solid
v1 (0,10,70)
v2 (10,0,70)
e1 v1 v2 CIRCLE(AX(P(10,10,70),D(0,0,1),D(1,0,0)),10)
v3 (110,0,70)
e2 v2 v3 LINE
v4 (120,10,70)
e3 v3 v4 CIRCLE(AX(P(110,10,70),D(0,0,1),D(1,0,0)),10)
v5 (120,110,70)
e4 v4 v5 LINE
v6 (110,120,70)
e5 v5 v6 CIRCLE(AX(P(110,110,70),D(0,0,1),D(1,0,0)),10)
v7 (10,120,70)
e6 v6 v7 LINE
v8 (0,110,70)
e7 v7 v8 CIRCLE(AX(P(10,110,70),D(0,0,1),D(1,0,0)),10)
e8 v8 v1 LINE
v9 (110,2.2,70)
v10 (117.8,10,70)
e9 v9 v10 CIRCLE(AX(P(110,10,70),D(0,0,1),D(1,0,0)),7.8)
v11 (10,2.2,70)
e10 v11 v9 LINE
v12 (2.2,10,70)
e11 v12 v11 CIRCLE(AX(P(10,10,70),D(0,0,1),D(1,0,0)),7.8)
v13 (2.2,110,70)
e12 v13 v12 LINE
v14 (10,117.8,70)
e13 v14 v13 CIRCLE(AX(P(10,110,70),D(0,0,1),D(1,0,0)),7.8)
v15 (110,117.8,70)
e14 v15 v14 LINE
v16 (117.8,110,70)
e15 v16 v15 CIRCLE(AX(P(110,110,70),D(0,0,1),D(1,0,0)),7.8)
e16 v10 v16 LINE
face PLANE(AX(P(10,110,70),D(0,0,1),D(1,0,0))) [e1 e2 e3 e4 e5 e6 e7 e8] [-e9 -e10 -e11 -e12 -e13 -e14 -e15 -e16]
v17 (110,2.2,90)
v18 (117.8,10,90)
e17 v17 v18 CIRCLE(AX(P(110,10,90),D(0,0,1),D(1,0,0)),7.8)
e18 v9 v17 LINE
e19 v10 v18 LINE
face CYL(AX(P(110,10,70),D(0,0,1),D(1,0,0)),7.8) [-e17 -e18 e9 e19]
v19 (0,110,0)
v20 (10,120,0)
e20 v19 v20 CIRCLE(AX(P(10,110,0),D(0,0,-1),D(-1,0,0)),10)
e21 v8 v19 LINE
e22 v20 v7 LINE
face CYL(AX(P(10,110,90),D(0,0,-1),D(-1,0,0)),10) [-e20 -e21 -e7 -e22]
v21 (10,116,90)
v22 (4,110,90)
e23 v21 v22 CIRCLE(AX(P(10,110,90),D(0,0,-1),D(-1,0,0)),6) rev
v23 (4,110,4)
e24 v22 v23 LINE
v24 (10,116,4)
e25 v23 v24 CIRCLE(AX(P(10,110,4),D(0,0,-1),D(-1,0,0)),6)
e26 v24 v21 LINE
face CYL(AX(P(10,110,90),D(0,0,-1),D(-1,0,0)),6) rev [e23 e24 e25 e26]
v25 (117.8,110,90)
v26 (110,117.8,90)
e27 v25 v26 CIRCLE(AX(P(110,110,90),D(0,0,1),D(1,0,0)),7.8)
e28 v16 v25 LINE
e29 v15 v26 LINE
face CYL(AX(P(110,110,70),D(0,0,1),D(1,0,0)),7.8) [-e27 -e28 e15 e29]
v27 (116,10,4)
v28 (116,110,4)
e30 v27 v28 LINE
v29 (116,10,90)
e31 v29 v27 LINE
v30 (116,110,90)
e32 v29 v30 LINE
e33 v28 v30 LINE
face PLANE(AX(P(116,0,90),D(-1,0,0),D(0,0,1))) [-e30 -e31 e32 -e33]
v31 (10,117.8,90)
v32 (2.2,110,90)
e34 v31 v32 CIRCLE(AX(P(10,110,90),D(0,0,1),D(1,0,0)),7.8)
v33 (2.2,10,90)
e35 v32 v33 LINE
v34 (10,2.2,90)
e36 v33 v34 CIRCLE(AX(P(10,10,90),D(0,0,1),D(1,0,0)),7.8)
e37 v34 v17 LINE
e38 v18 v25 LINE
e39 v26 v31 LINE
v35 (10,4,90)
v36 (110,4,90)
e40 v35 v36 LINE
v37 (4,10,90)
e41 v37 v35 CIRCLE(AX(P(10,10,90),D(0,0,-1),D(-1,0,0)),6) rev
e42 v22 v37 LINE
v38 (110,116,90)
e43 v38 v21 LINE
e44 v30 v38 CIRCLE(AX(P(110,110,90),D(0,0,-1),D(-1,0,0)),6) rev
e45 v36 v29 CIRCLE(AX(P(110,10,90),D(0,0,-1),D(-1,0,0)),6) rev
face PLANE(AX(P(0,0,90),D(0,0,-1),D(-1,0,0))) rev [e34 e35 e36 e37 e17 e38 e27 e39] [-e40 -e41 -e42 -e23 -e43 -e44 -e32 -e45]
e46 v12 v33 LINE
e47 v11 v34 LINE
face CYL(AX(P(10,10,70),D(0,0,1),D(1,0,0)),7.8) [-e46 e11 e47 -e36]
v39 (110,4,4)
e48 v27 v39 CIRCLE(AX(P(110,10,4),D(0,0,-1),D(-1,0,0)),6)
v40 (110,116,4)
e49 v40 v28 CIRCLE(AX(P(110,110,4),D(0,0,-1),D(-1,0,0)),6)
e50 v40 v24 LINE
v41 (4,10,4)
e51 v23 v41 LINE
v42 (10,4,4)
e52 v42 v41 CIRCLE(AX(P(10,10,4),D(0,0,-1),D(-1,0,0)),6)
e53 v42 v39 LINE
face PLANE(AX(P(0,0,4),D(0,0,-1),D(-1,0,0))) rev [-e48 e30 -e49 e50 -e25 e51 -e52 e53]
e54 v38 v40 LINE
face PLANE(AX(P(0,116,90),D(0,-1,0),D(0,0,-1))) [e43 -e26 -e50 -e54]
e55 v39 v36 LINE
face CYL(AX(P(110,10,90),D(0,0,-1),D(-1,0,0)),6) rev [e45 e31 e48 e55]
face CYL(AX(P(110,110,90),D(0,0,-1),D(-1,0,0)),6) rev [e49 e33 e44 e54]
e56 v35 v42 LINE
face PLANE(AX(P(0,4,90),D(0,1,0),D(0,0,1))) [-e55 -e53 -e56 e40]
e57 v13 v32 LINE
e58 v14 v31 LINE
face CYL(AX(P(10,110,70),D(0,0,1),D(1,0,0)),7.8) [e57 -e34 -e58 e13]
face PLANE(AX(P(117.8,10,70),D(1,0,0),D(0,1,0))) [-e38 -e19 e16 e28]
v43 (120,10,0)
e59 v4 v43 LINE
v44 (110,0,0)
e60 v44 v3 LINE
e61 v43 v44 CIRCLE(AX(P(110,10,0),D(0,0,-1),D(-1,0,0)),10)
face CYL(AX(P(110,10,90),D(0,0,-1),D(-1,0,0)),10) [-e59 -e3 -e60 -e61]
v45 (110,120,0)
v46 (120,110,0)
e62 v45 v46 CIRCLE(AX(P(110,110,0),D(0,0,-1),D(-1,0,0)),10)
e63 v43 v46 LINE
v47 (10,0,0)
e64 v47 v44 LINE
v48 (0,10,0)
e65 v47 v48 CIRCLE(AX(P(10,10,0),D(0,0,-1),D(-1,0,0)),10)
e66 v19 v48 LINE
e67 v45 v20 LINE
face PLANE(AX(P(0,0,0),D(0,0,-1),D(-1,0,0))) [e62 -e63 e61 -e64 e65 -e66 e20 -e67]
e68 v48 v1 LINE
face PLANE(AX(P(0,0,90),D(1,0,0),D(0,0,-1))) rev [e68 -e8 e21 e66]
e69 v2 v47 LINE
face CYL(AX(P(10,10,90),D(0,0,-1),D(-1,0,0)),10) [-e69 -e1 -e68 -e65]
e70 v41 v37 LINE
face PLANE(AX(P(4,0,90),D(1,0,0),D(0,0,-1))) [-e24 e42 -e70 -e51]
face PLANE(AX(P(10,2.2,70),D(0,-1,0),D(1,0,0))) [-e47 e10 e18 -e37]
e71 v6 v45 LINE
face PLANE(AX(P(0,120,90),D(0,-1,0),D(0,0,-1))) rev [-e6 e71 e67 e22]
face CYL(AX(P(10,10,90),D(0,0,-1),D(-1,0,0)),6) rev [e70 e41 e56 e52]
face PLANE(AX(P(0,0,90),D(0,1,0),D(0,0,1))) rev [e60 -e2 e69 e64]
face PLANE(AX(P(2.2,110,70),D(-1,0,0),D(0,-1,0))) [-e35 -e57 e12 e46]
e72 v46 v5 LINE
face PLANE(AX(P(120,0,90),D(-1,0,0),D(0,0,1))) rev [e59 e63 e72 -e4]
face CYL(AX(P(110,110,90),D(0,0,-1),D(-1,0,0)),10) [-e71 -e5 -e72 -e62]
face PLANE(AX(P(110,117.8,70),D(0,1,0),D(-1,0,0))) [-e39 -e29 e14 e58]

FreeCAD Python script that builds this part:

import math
import FreeCAD as App
import Part
import Sketcher


def edges_at(feature, points):
    """Names of the edges that pass closest to the given points."""
    edges = feature.Shape.Edges
    near = lambda p: min(range(len(edges)), key=lambda i: edges[i].distToShape(Part.Vertex(*p))[0])
    return sorted({f"Edge{near(p) + 1}" for p in points})


def faces_at(feature, points):
    """Names of the faces that lie closest to the given points."""
    faces = feature.Shape.Faces
    near = lambda p: min(range(len(faces)), key=lambda i: faces[i].distToShape(Part.Vertex(*p))[0])
    return sorted({f"Face{near(p) + 1}" for p in points})

doc = App.newDocument("Part")
params = doc.addObject("Spreadsheet::Sheet", "Params")
for row, (alias, value) in enumerate([
    ("sketch1_width", "120 mm"),
    ("pad1_length", "90 mm"),
    ("fillet_radius", "10 mm"),
    ("thickness_wall", "4 mm"),
    ("sketch2_radius", "10 mm"),
    ("sketch2_radius2", "7.8 mm"),
    ("sketch2_width", "100 mm"),
    ("pocket1_length", "20 mm"),
], start=1):
    params.set(f"A{row}", alias)
    params.set(f"B{row}", "=" + value)
    params.setAlias(f"B{row}", alias)

body = doc.addObject("PartDesign::Body", "Body")

# Sketch on XY plane
sketch1 = body.newObject("Sketcher::SketchObject", "Sketch")
sketch1.AttachmentSupport = (doc.getObject("XY_Plane"), [""])
sketch1.MapMode = "FlatFace"
sketch1.addGeometry([
    Part.LineSegment(App.Vector(0, 120, 0), App.Vector(0, 0, 0)),
    Part.LineSegment(App.Vector(0, 0, 0), App.Vector(120, 0, 0)),
    Part.LineSegment(App.Vector(120, 0, 0), App.Vector(120, 120, 0)),
    Part.LineSegment(App.Vector(120, 120, 0), App.Vector(0, 120, 0)),
], False)
sketch1.addConstraint([
    Sketcher.Constraint("Coincident", 0, 2, 1, 1),
    Sketcher.Constraint("Coincident", 1, 2, 2, 1),
    Sketcher.Constraint("Coincident", 2, 2, 3, 1),
    Sketcher.Constraint("Coincident", 3, 2, 0, 1),
    Sketcher.Constraint("Vertical", 0),
    Sketcher.Constraint("Horizontal", 1),
    Sketcher.Constraint("Vertical", 2),
    Sketcher.Constraint("Horizontal", 3),
    Sketcher.Constraint("Coincident", 0, 2, -1, 1),
    Sketcher.Constraint("Equal", 3, 0),
    Sketcher.Constraint("DistanceX", 1, 1, 1, 2, 120.0),
])
sketch1.setExpression("Constraints[10]", "Params.sketch1_width")
pad1 = body.newObject("PartDesign::Pad", "Pad")
pad1.Profile = sketch1
pad1.setExpression("Length", "Params.pad1_length")
doc.recompute()

fillet = body.newObject("PartDesign::Fillet", "Fillet")
fillet.Base = (pad1, edges_at(pad1, [
    (0, 120, 45),
    (120, 120, 45),
    (120, 0, 45),
    (0, 0, 45),
]))
fillet.setExpression("Radius", "Params.fillet_radius")
doc.recompute()

thickness = body.newObject("PartDesign::Thickness", "Thickness")
thickness.Base = (fillet, faces_at(fillet, [(60, 60, 90)]))
thickness.setExpression("Value", "Params.thickness_wall")
thickness.Reversed = True
thickness.Join = "Intersection"

# Sketch on XY plane
sketch2 = body.newObject("Sketcher::SketchObject", "Sketch001")
sketch2.AttachmentSupport = (doc.getObject("XY_Plane"), [""])
sketch2.MapMode = "FlatFace"
sketch2.AttachmentOffset = App.Placement(App.Vector(0, 0, 90), App.Rotation())
sketch2.addGeometry([
    Part.LineSegment(App.Vector(0, 110, 0), App.Vector(0, 10, 0)),  # 0
    Part.ArcOfCircle(Part.Circle(App.Vector(10, 10, 0), App.Vector(0, 0, 1), 10), math.radians(180), math.radians(270)),  # 1
    Part.LineSegment(App.Vector(10, 0, 0), App.Vector(110, 0, 0)),  # 2
    Part.ArcOfCircle(Part.Circle(App.Vector(110, 10, 0), App.Vector(0, 0, 1), 10), math.radians(-90), math.radians(0)),  # 3
    Part.LineSegment(App.Vector(120, 10, 0), App.Vector(120, 110, 0)),  # 4
    Part.ArcOfCircle(Part.Circle(App.Vector(110, 110, 0), App.Vector(0, 0, 1), 10), math.radians(0), math.radians(90)),  # 5
    Part.LineSegment(App.Vector(110, 120, 0), App.Vector(10, 120, 0)),  # 6
    Part.ArcOfCircle(Part.Circle(App.Vector(10, 110, 0), App.Vector(0, 0, 1), 10), math.radians(90), math.radians(180)),  # 7
    Part.LineSegment(App.Vector(2, 10, 0), App.Vector(2, 110, 0)),  # 8
    Part.ArcOfCircle(Part.Circle(App.Vector(10, 110, 0), App.Vector(0, 0, 1), 8), math.radians(90), math.radians(180)),  # 9
    Part.LineSegment(App.Vector(10, 118, 0), App.Vector(110, 118, 0)),  # 10
    Part.ArcOfCircle(Part.Circle(App.Vector(110, 110, 0), App.Vector(0, 0, 1), 8), math.radians(0), math.radians(90)),  # 11
    Part.LineSegment(App.Vector(118, 110, 0), App.Vector(118, 10, 0)),  # 12
    Part.ArcOfCircle(Part.Circle(App.Vector(110, 10, 0), App.Vector(0, 0, 1), 8), math.radians(-90), math.radians(0)),  # 13
    Part.LineSegment(App.Vector(110, 2, 0), App.Vector(10, 2, 0)),  # 14
    Part.ArcOfCircle(Part.Circle(App.Vector(10, 10, 0), App.Vector(0, 0, 1), 8), math.radians(-180), math.radians(-90)),  # 15
], False)
sketch2.addConstraint([
    Sketcher.Constraint("Tangent", 0, 2, 1, 1),
    Sketcher.Constraint("Tangent", 1, 2, 2, 1),
    Sketcher.Constraint("Tangent", 2, 2, 3, 1),
    Sketcher.Constraint("Tangent", 3, 2, 4, 1),
    Sketcher.Constraint("Tangent", 4, 2, 5, 1),
    Sketcher.Constraint("Tangent", 5, 2, 6, 1),
    Sketcher.Constraint("Tangent", 6, 2, 7, 1),
    Sketcher.Constraint("Tangent", 7, 2, 0, 1),
    Sketcher.Constraint("Tangent", 8, 2, 9, 2),
    Sketcher.Constraint("Tangent", 9, 1, 10, 1),
    Sketcher.Constraint("Tangent", 10, 2, 11, 2),
    Sketcher.Constraint("Tangent", 11, 1, 12, 1),
    Sketcher.Constraint("Tangent", 12, 2, 13, 2),
    Sketcher.Constraint("Tangent", 13, 1, 14, 1),
    Sketcher.Constraint("Tangent", 14, 2, 15, 2),
    Sketcher.Constraint("Tangent", 15, 1, 8, 1),
    Sketcher.Constraint("Vertical", 0),
    Sketcher.Constraint("Horizontal", 2),
    Sketcher.Constraint("Vertical", 4),
    Sketcher.Constraint("Horizontal", 6),
    Sketcher.Constraint("Vertical", 8),
    Sketcher.Constraint("Horizontal", 10),
    Sketcher.Constraint("Vertical", 12),
    Sketcher.Constraint("Horizontal", 14),
    Sketcher.Constraint("Coincident", 9, 3, 7, 3),
    Sketcher.Constraint("Coincident", 11, 3, 5, 3),
    Sketcher.Constraint("Coincident", 13, 3, 3, 3),
    Sketcher.Constraint("Equal", 1, 3),
    Sketcher.Constraint("Equal", 3, 5),
    Sketcher.Constraint("Equal", 5, 7),
    Sketcher.Constraint("Equal", 13, 15),
    Sketcher.Constraint("PointOnObject", 0, 2, -2),
    Sketcher.Constraint("PointOnObject", 1, 2, -1),
    Sketcher.Constraint("Equal", 14, 0),
    Sketcher.Constraint("Radius", 1, 10.0),
    Sketcher.Constraint("Radius", 9, 7.8),
    Sketcher.Constraint("DistanceX", 2, 1, 2, 2, 100.0),
])
sketch2.setExpression("Constraints[34]", "Params.sketch2_radius")
sketch2.setExpression("Constraints[35]", "Params.sketch2_radius2")
sketch2.setExpression("Constraints[36]", "Params.sketch2_width")
pocket1 = body.newObject("PartDesign::Pocket", "Pocket")
pocket1.Profile = sketch2
pocket1.setExpression("Length", "Params.pocket1_length")

doc.recompute()
